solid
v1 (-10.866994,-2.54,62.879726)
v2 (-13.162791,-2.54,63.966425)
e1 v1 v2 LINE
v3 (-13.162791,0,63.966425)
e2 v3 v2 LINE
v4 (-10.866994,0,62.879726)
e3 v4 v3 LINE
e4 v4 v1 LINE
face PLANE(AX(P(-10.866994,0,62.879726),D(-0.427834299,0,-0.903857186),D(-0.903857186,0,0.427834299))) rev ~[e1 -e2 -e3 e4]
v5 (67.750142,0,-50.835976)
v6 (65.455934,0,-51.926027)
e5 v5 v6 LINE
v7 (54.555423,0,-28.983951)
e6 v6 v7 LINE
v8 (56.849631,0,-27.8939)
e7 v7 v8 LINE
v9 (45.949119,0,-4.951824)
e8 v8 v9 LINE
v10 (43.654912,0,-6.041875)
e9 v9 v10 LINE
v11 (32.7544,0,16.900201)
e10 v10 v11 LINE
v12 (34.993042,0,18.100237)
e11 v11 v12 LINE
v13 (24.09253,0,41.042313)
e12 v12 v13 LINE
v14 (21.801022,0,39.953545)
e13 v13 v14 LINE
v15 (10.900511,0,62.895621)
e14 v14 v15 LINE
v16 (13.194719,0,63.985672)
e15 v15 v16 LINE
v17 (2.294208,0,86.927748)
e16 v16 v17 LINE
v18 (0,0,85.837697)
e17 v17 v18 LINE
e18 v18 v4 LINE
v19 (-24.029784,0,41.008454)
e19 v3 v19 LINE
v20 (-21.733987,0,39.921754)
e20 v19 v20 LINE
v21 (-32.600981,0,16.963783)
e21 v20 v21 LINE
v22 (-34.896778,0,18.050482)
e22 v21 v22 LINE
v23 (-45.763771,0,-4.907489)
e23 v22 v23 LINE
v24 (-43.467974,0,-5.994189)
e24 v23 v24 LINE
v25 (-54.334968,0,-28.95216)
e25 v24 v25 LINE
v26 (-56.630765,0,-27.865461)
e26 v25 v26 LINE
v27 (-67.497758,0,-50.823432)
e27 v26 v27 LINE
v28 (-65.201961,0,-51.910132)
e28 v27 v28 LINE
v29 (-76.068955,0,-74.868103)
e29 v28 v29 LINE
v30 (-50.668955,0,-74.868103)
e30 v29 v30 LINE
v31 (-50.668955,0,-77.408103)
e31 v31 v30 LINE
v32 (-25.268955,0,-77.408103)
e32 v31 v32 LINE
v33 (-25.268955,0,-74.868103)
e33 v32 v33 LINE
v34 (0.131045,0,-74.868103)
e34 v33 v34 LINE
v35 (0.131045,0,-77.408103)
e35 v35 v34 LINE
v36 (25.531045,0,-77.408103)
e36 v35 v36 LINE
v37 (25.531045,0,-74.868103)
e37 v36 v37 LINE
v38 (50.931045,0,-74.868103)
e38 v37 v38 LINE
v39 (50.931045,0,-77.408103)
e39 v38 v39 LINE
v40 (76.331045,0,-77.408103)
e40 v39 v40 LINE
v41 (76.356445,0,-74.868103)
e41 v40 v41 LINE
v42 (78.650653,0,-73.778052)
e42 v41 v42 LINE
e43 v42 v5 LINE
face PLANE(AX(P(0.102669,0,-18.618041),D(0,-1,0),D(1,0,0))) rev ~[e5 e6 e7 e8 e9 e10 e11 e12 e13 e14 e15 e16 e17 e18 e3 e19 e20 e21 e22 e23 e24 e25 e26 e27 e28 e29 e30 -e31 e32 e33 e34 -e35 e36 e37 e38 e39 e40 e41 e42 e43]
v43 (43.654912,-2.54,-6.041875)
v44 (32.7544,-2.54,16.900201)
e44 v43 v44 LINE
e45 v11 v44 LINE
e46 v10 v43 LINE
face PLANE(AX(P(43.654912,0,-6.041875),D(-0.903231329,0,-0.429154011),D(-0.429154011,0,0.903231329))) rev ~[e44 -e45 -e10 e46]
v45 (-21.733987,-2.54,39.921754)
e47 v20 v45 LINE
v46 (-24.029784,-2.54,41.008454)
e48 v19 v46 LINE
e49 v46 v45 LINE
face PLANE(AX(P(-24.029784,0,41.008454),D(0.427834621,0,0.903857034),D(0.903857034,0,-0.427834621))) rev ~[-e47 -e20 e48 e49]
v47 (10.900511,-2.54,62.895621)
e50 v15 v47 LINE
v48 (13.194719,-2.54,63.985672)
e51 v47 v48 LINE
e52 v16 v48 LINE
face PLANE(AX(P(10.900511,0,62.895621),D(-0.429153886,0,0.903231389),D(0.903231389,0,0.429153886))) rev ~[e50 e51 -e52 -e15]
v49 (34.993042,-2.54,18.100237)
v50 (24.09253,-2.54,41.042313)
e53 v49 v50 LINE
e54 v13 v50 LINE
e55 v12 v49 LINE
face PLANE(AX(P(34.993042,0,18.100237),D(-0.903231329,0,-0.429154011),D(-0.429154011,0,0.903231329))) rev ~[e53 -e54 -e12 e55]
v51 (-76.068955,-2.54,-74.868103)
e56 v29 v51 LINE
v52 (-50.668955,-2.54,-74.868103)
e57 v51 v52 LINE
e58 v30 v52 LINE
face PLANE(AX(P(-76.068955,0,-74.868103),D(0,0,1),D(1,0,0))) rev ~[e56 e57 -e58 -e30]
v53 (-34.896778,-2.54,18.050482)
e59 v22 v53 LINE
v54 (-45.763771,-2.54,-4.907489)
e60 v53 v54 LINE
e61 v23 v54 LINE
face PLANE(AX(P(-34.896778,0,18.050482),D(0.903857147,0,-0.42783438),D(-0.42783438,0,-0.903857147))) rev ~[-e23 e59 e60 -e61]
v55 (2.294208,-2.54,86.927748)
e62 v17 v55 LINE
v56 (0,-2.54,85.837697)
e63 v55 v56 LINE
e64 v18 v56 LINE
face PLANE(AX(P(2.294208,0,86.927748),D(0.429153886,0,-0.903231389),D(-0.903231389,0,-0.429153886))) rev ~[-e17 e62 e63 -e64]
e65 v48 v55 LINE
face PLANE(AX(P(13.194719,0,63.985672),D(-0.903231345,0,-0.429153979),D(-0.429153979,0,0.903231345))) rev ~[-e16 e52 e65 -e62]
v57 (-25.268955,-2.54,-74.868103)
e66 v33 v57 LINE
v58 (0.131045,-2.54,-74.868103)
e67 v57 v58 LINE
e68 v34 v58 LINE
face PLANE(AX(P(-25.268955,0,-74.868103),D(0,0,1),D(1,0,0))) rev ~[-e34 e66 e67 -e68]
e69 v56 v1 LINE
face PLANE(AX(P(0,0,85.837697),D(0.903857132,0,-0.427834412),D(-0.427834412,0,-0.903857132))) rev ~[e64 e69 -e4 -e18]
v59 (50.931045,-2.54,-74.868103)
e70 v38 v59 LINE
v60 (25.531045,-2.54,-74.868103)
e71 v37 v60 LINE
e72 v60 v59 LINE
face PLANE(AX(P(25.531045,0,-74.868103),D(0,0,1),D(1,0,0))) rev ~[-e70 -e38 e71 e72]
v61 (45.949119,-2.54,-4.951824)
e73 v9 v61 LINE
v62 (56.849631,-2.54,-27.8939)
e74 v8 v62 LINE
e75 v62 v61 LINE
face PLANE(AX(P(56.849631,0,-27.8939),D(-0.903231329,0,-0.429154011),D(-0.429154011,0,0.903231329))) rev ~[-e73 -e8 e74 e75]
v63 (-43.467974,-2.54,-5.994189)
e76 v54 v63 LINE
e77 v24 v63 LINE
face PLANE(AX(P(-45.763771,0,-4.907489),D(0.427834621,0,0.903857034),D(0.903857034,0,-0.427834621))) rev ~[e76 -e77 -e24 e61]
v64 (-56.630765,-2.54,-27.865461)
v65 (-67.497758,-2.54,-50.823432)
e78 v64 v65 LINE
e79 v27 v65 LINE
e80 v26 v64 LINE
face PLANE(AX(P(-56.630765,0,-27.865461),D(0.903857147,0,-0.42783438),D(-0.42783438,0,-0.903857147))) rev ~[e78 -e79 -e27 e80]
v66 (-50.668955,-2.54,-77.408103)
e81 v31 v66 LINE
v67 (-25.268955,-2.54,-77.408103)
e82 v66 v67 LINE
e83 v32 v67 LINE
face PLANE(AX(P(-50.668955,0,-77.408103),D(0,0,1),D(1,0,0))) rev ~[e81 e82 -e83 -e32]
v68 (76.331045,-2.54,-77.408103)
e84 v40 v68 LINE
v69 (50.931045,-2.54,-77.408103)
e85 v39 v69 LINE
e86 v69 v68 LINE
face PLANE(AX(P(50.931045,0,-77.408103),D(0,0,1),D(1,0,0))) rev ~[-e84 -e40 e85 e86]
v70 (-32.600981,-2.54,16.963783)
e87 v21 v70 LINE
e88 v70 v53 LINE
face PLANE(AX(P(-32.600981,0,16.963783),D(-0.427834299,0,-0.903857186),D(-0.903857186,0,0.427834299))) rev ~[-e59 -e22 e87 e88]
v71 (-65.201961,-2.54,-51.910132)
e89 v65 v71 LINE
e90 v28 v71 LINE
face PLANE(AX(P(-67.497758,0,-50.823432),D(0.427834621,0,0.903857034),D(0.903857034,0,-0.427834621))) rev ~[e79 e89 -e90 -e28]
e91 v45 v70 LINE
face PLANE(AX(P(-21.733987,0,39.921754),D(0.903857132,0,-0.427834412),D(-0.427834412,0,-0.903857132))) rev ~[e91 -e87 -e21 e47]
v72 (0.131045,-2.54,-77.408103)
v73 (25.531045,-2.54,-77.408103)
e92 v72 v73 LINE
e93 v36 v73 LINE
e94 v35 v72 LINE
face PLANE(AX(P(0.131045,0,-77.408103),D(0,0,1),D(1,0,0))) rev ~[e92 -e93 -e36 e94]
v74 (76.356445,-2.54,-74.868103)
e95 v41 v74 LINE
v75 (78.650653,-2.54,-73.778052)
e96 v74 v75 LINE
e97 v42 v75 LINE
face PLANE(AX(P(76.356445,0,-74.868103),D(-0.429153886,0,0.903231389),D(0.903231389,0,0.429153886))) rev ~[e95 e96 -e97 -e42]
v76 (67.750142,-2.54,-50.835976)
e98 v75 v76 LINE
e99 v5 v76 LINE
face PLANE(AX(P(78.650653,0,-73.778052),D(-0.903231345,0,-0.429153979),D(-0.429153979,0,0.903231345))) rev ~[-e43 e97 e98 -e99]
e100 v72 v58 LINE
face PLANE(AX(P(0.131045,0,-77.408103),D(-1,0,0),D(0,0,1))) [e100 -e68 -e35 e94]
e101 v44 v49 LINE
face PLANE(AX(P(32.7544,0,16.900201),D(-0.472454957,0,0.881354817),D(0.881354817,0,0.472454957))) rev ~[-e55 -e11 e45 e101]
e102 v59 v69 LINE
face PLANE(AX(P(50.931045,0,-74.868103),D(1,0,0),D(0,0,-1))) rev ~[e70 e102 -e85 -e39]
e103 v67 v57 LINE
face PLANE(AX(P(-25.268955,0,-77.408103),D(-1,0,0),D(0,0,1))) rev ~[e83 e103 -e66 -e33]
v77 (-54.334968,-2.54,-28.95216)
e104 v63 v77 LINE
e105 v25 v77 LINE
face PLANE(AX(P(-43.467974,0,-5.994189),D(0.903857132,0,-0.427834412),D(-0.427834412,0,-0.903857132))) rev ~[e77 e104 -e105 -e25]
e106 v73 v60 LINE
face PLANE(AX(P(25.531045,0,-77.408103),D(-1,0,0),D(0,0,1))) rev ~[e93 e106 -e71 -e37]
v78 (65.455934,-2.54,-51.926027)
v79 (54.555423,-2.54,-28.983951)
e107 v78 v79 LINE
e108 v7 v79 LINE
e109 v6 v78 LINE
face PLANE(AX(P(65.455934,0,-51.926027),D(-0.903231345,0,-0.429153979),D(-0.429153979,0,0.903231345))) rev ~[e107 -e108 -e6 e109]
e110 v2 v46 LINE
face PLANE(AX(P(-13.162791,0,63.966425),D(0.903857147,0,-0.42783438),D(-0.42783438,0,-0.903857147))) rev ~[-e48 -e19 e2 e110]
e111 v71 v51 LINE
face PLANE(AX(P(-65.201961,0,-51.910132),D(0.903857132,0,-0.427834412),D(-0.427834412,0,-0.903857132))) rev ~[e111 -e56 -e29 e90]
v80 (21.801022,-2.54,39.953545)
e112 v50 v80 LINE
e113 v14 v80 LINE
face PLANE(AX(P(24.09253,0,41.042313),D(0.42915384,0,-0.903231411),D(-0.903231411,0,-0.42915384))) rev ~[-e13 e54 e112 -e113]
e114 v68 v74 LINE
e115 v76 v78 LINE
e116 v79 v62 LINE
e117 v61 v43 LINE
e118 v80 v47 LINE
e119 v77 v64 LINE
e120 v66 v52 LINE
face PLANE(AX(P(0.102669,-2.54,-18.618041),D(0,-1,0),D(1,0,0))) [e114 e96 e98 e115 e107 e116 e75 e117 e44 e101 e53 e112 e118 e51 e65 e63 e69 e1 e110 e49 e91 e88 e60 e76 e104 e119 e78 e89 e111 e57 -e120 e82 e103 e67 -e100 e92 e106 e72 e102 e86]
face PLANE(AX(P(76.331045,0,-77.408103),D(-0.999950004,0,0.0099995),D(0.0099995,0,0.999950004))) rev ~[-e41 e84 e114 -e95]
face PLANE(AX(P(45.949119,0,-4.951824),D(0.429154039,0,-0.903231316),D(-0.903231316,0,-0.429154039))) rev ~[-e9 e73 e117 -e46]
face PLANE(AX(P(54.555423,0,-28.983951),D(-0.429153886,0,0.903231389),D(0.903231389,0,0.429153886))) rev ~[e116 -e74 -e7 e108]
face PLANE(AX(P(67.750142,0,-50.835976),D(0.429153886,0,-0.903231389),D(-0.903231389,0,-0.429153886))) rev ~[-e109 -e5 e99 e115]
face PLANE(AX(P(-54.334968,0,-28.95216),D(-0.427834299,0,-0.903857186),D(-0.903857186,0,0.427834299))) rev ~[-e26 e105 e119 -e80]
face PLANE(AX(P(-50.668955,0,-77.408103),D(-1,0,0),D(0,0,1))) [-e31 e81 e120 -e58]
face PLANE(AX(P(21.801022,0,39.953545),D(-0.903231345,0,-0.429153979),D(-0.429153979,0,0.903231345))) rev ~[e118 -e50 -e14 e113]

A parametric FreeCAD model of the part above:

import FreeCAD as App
import Part
import Sketcher
Q = App.Units.Quantity

doc = App.newDocument("Part")
params = doc.addObject("Spreadsheet::Sheet", "Params")
for row, (alias, value) in enumerate([
    ("sketch1_width", "1 in"),
    ("sketch1_length", "1 in"),
    ("sketch1_height", "0.1 in"),
    ("sketch1_length2", "0.1 in"),
    ("pad1_length", "0.1 in"),
], start=1):
    params.set(f"A{row}", alias)
    params.set(f"B{row}", "=" + value)
    params.setAlias(f"B{row}", alias)

body = doc.addObject("PartDesign::Body", "Body")

# Sketch on XZ plane
sketch1 = doc.addObject("Sketcher::SketchObject", "Sketch")
body.addObject(sketch1)
sketch1.AttachmentSupport = (doc.XZ_Plane, [""])
sketch1.MapMode = "FlatFace"
sketch1.addGeometry([
    Part.LineSegment(App.Vector(0, 85.8, 0), App.Vector(-10.9, 62.9, 0)),  # 0
    Part.LineSegment(App.Vector(-10.9, 62.9, 0), App.Vector(-13.2, 64, 0)),  # 1
    Part.LineSegment(App.Vector(-13.2, 64, 0), App.Vector(-24, 41, 0)),  # 2
    Part.LineSegment(App.Vector(-24, 41, 0), App.Vector(-21.7, 39.9, 0)),  # 3
    Part.LineSegment(App.Vector(-21.7, 39.9, 0), App.Vector(-32.6, 17, 0)),  # 4
    Part.LineSegment(App.Vector(-32.6, 17, 0), App.Vector(-34.9, 18.1, 0)),  # 5
    Part.LineSegment(App.Vector(-34.9, 18.1, 0), App.Vector(-45.8, -4.9, 0)),  # 6
    Part.LineSegment(App.Vector(-45.8, -4.9, 0), App.Vector(-43.5, -6, 0)),  # 7
    Part.LineSegment(App.Vector(-43.5, -6, 0), App.Vector(-54.3, -29, 0)),  # 8
    Part.LineSegment(App.Vector(-54.3, -29, 0), App.Vector(-56.6, -27.9, 0)),  # 9
    Part.LineSegment(App.Vector(-56.6, -27.9, 0), App.Vector(-67.5, -50.8, 0)),  # 10
    Part.LineSegment(App.Vector(-67.5, -50.8, 0), App.Vector(-65.2, -51.9, 0)),  # 11
    Part.LineSegment(App.Vector(-65.2, -51.9, 0), App.Vector(-76.1, -74.9, 0)),  # 12
    Part.LineSegment(App.Vector(-76.1, -74.9, 0), App.Vector(-50.7, -74.9, 0)),  # 13
    Part.LineSegment(App.Vector(-50.7, -74.9, 0), App.Vector(-50.7, -77.4, 0)),  # 14
    Part.LineSegment(App.Vector(-50.7, -77.4, 0), App.Vector(-25.3, -77.4, 0)),  # 15
    Part.LineSegment(App.Vector(-25.3, -77.4, 0), App.Vector(-25.3, -74.9, 0)),  # 16
    Part.LineSegment(App.Vector(-25.3, -74.9, 0), App.Vector(0.1, -74.9, 0)),  # 17
    Part.LineSegment(App.Vector(0.1, -74.9, 0), App.Vector(0.1, -77.4, 0)),  # 18
    Part.LineSegment(App.Vector(0.1, -77.4, 0), App.Vector(25.5, -77.4, 0)),  # 19
    Part.LineSegment(App.Vector(25.5, -77.4, 0), App.Vector(25.5, -74.9, 0)),  # 20
    Part.LineSegment(App.Vector(25.5, -74.9, 0), App.Vector(50.9, -74.9, 0)),  # 21
    Part.LineSegment(App.Vector(50.9, -74.9, 0), App.Vector(50.9, -77.4, 0)),  # 22
    Part.LineSegment(App.Vector(50.9, -77.4, 0), App.Vector(76.3, -77.4, 0)),  # 23
    Part.LineSegment(App.Vector(76.3, -77.4, 0), App.Vector(76.4, -74.9, 0)),  # 24
    Part.LineSegment(App.Vector(76.4, -74.9, 0), App.Vector(78.7, -73.8, 0)),  # 25
    Part.LineSegment(App.Vector(78.7, -73.8, 0), App.Vector(67.8, -50.8, 0)),  # 26
    Part.LineSegment(App.Vector(67.8, -50.8, 0), App.Vector(65.5, -51.9, 0)),  # 27
    Part.LineSegment(App.Vector(65.5, -51.9, 0), App.Vector(54.6, -29, 0)),  # 28
    Part.LineSegment(App.Vector(54.6, -29, 0), App.Vector(56.8, -27.9, 0)),  # 29
    Part.LineSegment(App.Vector(56.8, -27.9, 0), App.Vector(45.9, -5, 0)),  # 30
    Part.LineSegment(App.Vector(45.9, -5, 0), App.Vector(43.7, -6, 0)),  # 31
    Part.LineSegment(App.Vector(43.7, -6, 0), App.Vector(32.8, 16.9, 0)),  # 32
    Part.LineSegment(App.Vector(32.8, 16.9, 0), App.Vector(35, 18.1, 0)),  # 33
    Part.LineSegment(App.Vector(35, 18.1, 0), App.Vector(24.1, 41, 0)),  # 34
    Part.LineSegment(App.Vector(24.1, 41, 0), App.Vector(21.8, 40, 0)),  # 35
    Part.LineSegment(App.Vector(21.8, 40, 0), App.Vector(10.9, 62.9, 0)),  # 36
    Part.LineSegment(App.Vector(10.9, 62.9, 0), App.Vector(13.2, 64, 0)),  # 37
    Part.LineSegment(App.Vector(13.2, 64, 0), App.Vector(2.3, 86.9, 0)),  # 38
    Part.LineSegment(App.Vector(2.3, 86.9, 0), App.Vector(0, 85.8, 0)),  # 39
], False)
sketch1.addConstraint([
    Sketcher.Constraint("Coincident", 0, 2, 1, 1),
    Sketcher.Constraint("Coincident", 1, 2, 2, 1),
    Sketcher.Constraint("Coincident", 2, 2, 3, 1),
    Sketcher.Constraint("Coincident", 3, 2, 4, 1),
    Sketcher.Constraint("Coincident", 4, 2, 5, 1),
    Sketcher.Constraint("Coincident", 5, 2, 6, 1),
    Sketcher.Constraint("Coincident", 6, 2, 7, 1),
    Sketcher.Constraint("Coincident", 7, 2, 8, 1),
    Sketcher.Constraint("Coincident", 8, 2, 9, 1),
    Sketcher.Constraint("Coincident", 9, 2, 10, 1),
    Sketcher.Constraint("Coincident", 10, 2, 11, 1),
    Sketcher.Constraint("Coincident", 11, 2, 12, 1),
    Sketcher.Constraint("Coincident", 12, 2, 13, 1),
    Sketcher.Constraint("Coincident", 13, 2, 14, 1),
    Sketcher.Constraint("Coincident", 14, 2, 15, 1),
    Sketcher.Constraint("Coincident", 15, 2, 16, 1),
    Sketcher.Constraint("Coincident", 16, 2, 17, 1),
    Sketcher.Constraint("Coincident", 17, 2, 18, 1),
    Sketcher.Constraint("Coincident", 18, 2, 19, 1),
    Sketcher.Constraint("Coincident", 19, 2, 20, 1),
    Sketcher.Constraint("Coincident", 20, 2, 21, 1),
    Sketcher.Constraint("Coincident", 21, 2, 22, 1),
    Sketcher.Constraint("Coincident", 22, 2, 23, 1),
    Sketcher.Constraint("Coincident", 23, 2, 24, 1),
    Sketcher.Constraint("Coincident", 24, 2, 25, 1),
    Sketcher.Constraint("Coincident", 25, 2, 26, 1),
    Sketcher.Constraint("Coincident", 26, 2, 27, 1),
    Sketcher.Constraint("Coincident", 27, 2, 28, 1),
    Sketcher.Constraint("Coincident", 28, 2, 29, 1),
    Sketcher.Constraint("Coincident", 29, 2, 30, 1),
    Sketcher.Constraint("Coincident", 30, 2, 31, 1),
    Sketcher.Constraint("Coincident", 31, 2, 32, 1),
    Sketcher.Constraint("Coincident", 32, 2, 33, 1),
    Sketcher.Constraint("Coincident", 33, 2, 34, 1),
    Sketcher.Constraint("Coincident", 34, 2, 35, 1),
    Sketcher.Constraint("Coincident", 35, 2, 36, 1),
    Sketcher.Constraint("Coincident", 36, 2, 37, 1),
    Sketcher.Constraint("Coincident", 37, 2, 38, 1),
    Sketcher.Constraint("Coincident", 38, 2, 39, 1),
    Sketcher.Constraint("Coincident", 39, 2, 0, 1),
    Sketcher.Constraint("Horizontal", 13),
    Sketcher.Constraint("Vertical", 14),
    Sketcher.Constraint("Horizontal", 15),
    Sketcher.Constraint("Vertical", 16),
    Sketcher.Constraint("Horizontal", 17),
    Sketcher.Constraint("Vertical", 18),
    Sketcher.Constraint("Horizontal", 19),
    Sketcher.Constraint("Vertical", 20),
    Sketcher.Constraint("Horizontal", 21),
    Sketcher.Constraint("Vertical", 22),
    Sketcher.Constraint("Horizontal", 23),
    Sketcher.Constraint("PointOnObject", 39, 2, -2),
    Sketcher.Constraint("Perpendicular", 0, 1),
    Sketcher.Constraint("Perpendicular", 1, 2),
    Sketcher.Constraint("Perpendicular", 2, 3),
    Sketcher.Constraint("Perpendicular", 3, 4),
    Sketcher.Constraint("Perpendicular", 4, 5),
    Sketcher.Constraint("Perpendicular", 5, 6),
    Sketcher.Constraint("Perpendicular", 6, 7),
    Sketcher.Constraint("Perpendicular", 7, 8),
    Sketcher.Constraint("Perpendicular", 8, 9),
    Sketcher.Constraint("Perpendicular", 9, 10),
    Sketcher.Constraint("Perpendicular", 10, 11),
    Sketcher.Constraint("Perpendicular", 11, 12),
    Sketcher.Constraint("Perpendicular", 25, 26),
    Sketcher.Constraint("Perpendicular", 26, 27),
    Sketcher.Constraint("Perpendicular", 27, 28),
    Sketcher.Constraint("Perpendicular", 28, 29),
    Sketcher.Constraint("Perpendicular", 29, 30),
    Sketcher.Constraint("Perpendicular", 30, 31),
    Sketcher.Constraint("Perpendicular", 31, 32),
    Sketcher.Constraint("Parallel", 32, 34),
    Sketcher.Constraint("Perpendicular", 34, 35),
    Sketcher.Constraint("Perpendicular", 35, 36),
    Sketcher.Constraint("Perpendicular", 36, 37),
    Sketcher.Constraint("Perpendicular", 37, 38),
    Sketcher.Constraint("Perpendicular", 38, 39),
    Sketcher.Constraint("Horizontal", 13, 2, 16, 2),
    Sketcher.Constraint("Horizontal", 15, 2, 18, 2),
    Sketcher.Constraint("Horizontal", 17, 2, 20, 2),
    Sketcher.Constraint("Horizontal", 19, 2, 22, 2),
    Sketcher.Constraint("Horizontal", 21, 2, 24, 2),
    Sketcher.Constraint("Equal", 13, 15),
    Sketcher.Constraint("Equal", 15, 17),
    Sketcher.Constraint("Equal", 17, 19),
    Sketcher.Constraint("Equal", 19, 21),
    Sketcher.Constraint("Equal", 21, 23),
    Sketcher.Constraint("Equal", 0, 2),
    Sketcher.Constraint("Equal", 1, 3),
    Sketcher.Constraint("Equal", 2, 4),
    Sketcher.Constraint("Equal", 3, 5),
    Sketcher.Constraint("Equal", 4, 6),
    Sketcher.Constraint("Equal", 5, 7),
    Sketcher.Constraint("Equal", 6, 8),
    Sketcher.Constraint("Equal", 7, 9),
    Sketcher.Constraint("Equal", 8, 10),
    Sketcher.Constraint("Equal", 9, 11),
    Sketcher.Constraint("Equal", 10, 12),
    Sketcher.Constraint("Equal", 11, 25),
    Sketcher.Constraint("Equal", 12, 26),
    Sketcher.Constraint("Equal", 25, 27),
    Sketcher.Constraint("Equal", 26, 28),
    Sketcher.Constraint("Equal", 27, 29),
    Sketcher.Constraint("Equal", 28, 30),
    Sketcher.Constraint("Equal", 29, 31),
    Sketcher.Constraint("Equal", 30, 32),
    Sketcher.Constraint("Equal", 31, 33),
    Sketcher.Constraint("Equal", 32, 34),
    Sketcher.Constraint("Equal", 34, 36),
    Sketcher.Constraint("Equal", 33, 37),
    Sketcher.Constraint("Equal", 36, 38),
    Sketcher.Constraint("Equal", 37, 39),
    Sketcher.Constraint("DistanceX", 13, 1, 13, 2, Q("1 in")),
    Sketcher.Constraint("Distance", 0, Q("1 in")),
    Sketcher.Constraint("DistanceY", 14, 2, 14, 1, Q("0.1 in")),
    Sketcher.Constraint("Distance", 1, Q("0.1 in")),
    Sketcher.Constraint("DistanceX", 23, 2, 24, 2, Q("0.001 in")),
    Sketcher.Constraint("DistanceY", 29, 2, -1, 1, Q("27.8939 mm")),
    Sketcher.Constraint("DistanceX", -1, 1, 32, 2, Q("32.7544 mm")),
    Sketcher.Constraint("DistanceY", -1, 1, 32, 2, Q("16.900201 mm")),
])
sketch1.setExpression("Constraints[112]", "Params.sketch1_width")
sketch1.setExpression("Constraints[113]", "Params.sketch1_length")
sketch1.setExpression("Constraints[114]", "Params.sketch1_height")
sketch1.setExpression("Constraints[115]", "Params.sketch1_length2")
pad1 = doc.addObject("PartDesign::Pad", "Pad")
body.addObject(pad1)
pad1.Profile = sketch1
pad1.setExpression("Length", "Params.pad1_length")

doc.recompute()
